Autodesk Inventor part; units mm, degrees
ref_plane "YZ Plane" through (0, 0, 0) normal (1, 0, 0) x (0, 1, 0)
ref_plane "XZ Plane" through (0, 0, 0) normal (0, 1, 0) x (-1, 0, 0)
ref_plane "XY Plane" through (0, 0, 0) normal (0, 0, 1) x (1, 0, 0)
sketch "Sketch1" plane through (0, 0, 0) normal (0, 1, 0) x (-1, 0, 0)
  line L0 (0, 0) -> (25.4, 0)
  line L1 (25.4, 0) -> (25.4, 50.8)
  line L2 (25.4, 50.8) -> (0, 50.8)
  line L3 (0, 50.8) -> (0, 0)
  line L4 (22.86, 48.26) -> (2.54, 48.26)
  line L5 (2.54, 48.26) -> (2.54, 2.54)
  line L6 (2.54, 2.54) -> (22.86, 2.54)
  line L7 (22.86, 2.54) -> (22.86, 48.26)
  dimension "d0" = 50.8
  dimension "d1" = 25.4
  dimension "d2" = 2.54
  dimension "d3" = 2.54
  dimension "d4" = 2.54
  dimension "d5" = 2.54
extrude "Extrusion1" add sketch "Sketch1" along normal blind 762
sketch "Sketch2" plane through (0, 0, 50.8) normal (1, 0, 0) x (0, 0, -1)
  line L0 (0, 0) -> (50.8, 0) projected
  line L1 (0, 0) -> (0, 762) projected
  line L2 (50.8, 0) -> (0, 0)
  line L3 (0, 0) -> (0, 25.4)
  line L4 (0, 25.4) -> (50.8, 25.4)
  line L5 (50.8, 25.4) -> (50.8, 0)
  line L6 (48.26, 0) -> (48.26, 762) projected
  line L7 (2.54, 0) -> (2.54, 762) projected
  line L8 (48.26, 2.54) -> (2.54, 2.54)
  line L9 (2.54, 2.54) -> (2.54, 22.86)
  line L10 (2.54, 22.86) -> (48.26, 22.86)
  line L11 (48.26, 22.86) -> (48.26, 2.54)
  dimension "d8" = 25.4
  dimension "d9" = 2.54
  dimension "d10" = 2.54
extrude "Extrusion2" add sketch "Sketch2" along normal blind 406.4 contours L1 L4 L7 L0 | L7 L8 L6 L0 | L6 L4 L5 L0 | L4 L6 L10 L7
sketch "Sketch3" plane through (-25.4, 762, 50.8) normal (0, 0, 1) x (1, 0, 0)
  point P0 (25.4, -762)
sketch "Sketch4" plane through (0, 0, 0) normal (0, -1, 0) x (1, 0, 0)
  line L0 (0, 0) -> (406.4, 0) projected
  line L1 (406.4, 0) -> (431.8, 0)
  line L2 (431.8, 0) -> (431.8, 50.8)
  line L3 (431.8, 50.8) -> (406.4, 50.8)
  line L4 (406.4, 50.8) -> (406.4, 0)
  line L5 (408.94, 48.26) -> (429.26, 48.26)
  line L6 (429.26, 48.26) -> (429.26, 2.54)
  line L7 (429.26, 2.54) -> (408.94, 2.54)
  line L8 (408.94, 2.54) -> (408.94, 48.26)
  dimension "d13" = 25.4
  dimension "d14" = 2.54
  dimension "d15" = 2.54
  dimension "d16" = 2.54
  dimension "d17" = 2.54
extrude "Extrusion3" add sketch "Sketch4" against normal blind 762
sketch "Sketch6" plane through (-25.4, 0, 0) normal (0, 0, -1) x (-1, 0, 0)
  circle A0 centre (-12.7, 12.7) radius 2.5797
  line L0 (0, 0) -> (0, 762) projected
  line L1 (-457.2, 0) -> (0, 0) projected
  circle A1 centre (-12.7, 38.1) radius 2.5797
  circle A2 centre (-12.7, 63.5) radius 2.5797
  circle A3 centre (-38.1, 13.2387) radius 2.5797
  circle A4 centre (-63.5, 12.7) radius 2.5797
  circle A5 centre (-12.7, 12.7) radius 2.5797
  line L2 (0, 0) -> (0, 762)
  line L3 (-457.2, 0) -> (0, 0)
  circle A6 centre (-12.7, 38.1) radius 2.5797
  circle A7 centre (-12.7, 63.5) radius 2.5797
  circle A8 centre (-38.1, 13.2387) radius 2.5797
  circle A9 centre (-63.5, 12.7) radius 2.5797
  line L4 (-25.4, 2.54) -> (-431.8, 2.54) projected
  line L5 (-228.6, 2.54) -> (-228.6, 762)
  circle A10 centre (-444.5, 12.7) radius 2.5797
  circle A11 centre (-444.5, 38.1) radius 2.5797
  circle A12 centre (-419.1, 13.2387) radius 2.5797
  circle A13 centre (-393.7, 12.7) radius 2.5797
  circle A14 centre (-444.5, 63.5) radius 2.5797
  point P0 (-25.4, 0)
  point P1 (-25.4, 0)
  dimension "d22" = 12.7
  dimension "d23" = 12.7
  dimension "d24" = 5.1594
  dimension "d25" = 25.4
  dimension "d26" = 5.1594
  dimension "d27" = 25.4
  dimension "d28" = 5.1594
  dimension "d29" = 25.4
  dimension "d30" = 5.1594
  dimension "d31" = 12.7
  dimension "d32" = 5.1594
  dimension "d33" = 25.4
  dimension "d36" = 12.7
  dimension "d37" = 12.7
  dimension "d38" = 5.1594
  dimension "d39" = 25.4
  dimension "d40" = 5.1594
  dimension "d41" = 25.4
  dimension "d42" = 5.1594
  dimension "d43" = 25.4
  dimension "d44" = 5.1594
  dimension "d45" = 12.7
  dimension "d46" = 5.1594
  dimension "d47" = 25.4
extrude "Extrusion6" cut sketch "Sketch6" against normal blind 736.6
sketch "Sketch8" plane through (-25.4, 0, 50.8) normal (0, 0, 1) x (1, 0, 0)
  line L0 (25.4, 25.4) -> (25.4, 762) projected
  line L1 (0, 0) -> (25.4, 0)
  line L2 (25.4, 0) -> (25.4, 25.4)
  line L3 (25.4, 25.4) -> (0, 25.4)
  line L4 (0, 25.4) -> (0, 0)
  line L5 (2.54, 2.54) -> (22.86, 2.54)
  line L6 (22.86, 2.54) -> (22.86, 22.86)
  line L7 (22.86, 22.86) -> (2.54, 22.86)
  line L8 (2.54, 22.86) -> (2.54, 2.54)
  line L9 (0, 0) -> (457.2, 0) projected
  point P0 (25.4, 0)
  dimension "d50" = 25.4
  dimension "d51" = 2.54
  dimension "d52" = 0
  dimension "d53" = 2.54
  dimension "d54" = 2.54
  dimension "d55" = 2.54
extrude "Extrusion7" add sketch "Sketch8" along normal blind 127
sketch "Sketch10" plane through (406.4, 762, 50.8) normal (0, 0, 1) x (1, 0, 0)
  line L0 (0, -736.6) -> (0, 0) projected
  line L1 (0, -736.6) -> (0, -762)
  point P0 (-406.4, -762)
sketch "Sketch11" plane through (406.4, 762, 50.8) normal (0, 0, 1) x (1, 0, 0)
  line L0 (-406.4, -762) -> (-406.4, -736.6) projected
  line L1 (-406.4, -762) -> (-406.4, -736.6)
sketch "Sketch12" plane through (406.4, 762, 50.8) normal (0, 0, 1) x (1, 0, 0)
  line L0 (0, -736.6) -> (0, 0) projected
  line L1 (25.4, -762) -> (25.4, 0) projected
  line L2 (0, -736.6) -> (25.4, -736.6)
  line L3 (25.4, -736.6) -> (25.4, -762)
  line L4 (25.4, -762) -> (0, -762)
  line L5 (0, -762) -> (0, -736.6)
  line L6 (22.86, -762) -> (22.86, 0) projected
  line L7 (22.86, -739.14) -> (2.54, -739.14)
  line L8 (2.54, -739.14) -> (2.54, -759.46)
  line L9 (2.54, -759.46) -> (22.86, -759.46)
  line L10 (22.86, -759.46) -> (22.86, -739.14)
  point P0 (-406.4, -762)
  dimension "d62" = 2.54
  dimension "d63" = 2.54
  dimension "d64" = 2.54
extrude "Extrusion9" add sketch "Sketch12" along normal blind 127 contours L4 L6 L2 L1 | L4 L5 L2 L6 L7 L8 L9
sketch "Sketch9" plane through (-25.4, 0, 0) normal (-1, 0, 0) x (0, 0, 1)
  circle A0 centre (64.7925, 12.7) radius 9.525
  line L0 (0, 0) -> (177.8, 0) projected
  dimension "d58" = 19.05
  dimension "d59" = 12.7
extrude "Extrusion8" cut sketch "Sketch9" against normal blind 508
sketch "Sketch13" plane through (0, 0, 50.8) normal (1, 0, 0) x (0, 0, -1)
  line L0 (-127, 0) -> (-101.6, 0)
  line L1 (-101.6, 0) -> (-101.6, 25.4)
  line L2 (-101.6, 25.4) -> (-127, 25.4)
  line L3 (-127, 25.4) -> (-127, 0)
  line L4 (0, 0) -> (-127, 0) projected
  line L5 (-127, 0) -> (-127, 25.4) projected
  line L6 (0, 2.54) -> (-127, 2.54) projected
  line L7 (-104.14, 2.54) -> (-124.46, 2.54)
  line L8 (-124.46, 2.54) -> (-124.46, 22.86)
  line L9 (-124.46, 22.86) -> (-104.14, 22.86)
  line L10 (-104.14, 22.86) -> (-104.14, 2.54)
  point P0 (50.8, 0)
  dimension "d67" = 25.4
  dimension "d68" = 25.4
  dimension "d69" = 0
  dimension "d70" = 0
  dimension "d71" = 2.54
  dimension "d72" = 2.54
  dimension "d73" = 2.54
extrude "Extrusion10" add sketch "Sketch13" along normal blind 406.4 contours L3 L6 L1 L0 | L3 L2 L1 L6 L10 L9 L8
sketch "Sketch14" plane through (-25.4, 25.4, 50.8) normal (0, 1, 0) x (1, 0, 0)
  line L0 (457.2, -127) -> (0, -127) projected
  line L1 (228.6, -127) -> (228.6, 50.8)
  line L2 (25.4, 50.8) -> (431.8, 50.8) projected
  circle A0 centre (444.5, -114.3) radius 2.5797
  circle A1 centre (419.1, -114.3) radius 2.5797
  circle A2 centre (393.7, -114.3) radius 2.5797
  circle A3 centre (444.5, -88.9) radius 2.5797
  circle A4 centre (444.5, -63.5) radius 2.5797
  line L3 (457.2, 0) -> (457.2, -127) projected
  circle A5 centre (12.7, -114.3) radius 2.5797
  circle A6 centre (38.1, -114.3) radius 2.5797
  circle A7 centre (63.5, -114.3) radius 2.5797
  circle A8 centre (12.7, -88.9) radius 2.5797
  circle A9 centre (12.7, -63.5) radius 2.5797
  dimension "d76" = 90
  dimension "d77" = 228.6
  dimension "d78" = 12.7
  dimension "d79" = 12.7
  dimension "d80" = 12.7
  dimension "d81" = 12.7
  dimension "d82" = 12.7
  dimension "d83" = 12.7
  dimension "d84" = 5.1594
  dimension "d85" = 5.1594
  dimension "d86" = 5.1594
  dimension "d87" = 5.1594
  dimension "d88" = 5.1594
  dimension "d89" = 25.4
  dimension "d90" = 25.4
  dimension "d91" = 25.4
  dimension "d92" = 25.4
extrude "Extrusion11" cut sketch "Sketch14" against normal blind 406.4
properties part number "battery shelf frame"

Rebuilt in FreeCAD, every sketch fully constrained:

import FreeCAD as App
import Part
import Sketcher

V = App.Vector
Q = App.Units.Quantity

doc = App.newDocument("Part")
params = doc.addObject("Spreadsheet::Sheet", "Params")
for row, (alias, value) in enumerate([
    ("sketch1_width", "1 in"),
    ("sketch1_height", "2 in"),
    ("pad1_length", "30 in"),
    ("sketch2_width", "1 in"),
    ("sketch2_height", "2 in"),
    ("pad2_length", "16 in"),
    ("sketch3_width", "1 in"),
    ("sketch3_height", "2 in"),
    ("pad3_length", "30 in"),
    ("sketch4_diameter", "0.203126 in"),
    ("pocket1_length", "29 in"),
    ("sketch5_width", "1 in"),
    ("pad4_length", "5 in"),
    ("sketch6_width", "1 in"),
    ("pad5_length", "5 in"),
    ("sketch7_diameter", "0.75 in"),
    ("pocket2_length", "20 in"),
    ("sketch8_width", "1 in"),
    ("pad6_length", "16 in"),
    ("sketch9_diameter", "0.203126 in"),
    ("pocket3_length", "16 in"),
], start=1):
    params.set(f"A{row}", alias)
    params.set(f"B{row}", "=" + value)
    params.setAlias(f"B{row}", alias)

body = doc.addObject("PartDesign::Body", "Body")

# Sketch on XZ plane
sketch1 = doc.addObject("Sketcher::SketchObject", "Sketch")
body.addObject(sketch1)
sketch1.AttachmentSupport = (doc.XZ_Plane, [""])
sketch1.MapMode = "FlatFace"
sketch1.addGeometry(Part.LineSegment(V(0, 50.8, 0), V(0, 0, 0)), False)
sketch1.addGeometry(Part.LineSegment(V(0, 0, 0), V(-25.4, 0, 0)), False)
sketch1.addGeometry(Part.LineSegment(V(-25.4, 0, 0), V(-25.4, 50.8, 0)), False)
sketch1.addGeometry(Part.LineSegment(V(-25.4, 50.8, 0), V(0, 50.8, 0)), False)
sketch1.addGeometry(Part.LineSegment(V(-2.54, 48.26, 0), V(-22.86, 48.26, 0)), False)
sketch1.addGeometry(Part.LineSegment(V(-22.86, 48.26, 0), V(-22.86, 2.54, 0)), False)
sketch1.addGeometry(Part.LineSegment(V(-22.86, 2.54, 0), V(-2.54, 2.54, 0)), False)
sketch1.addGeometry(Part.LineSegment(V(-2.54, 2.54, 0), V(-2.54, 48.26, 0)), False)
sketch1.addConstraint(Sketcher.Constraint("Coincident", 0, 2, 1, 1))
sketch1.addConstraint(Sketcher.Constraint("Coincident", 1, 2, 2, 1))
sketch1.addConstraint(Sketcher.Constraint("Coincident", 2, 2, 3, 1))
sketch1.addConstraint(Sketcher.Constraint("Coincident", 3, 2, 0, 1))
sketch1.addConstraint(Sketcher.Constraint("Coincident", 4, 2, 5, 1))
sketch1.addConstraint(Sketcher.Constraint("Coincident", 5, 2, 6, 1))
sketch1.addConstraint(Sketcher.Constraint("Coincident", 6, 2, 7, 1))
sketch1.addConstraint(Sketcher.Constraint("Coincident", 7, 2, 4, 1))
sketch1.addConstraint(Sketcher.Constraint("Vertical", 0))
sketch1.addConstraint(Sketcher.Constraint("Horizontal", 1))
sketch1.addConstraint(Sketcher.Constraint("Vertical", 2))
sketch1.addConstraint(Sketcher.Constraint("Horizontal", 3))
sketch1.addConstraint(Sketcher.Constraint("Horizontal", 4))
sketch1.addConstraint(Sketcher.Constraint("Vertical", 5))
sketch1.addConstraint(Sketcher.Constraint("Horizontal", 6))
sketch1.addConstraint(Sketcher.Constraint("Vertical", 7))
sketch1.addConstraint(Sketcher.Constraint("Coincident", 0, 2, -1, 1))
sketch1.addConstraint(Sketcher.Constraint("DistanceX", 1, 2, 1, 1, Q("1 in")))
sketch1.addConstraint(Sketcher.Constraint("DistanceY", 0, 2, 0, 1, Q("2 in")))
sketch1.addConstraint(Sketcher.Constraint("DistanceY", -1, 1, 5, 2, Q("0.1 in")))
sketch1.addConstraint(Sketcher.Constraint("DistanceX", 6, 2, -1, 1, Q("0.1 in")))
sketch1.addConstraint(Sketcher.Constraint("DistanceX", 2, 2, 4, 2, Q("0.1 in")))
sketch1.addConstraint(Sketcher.Constraint("DistanceY", 4, 2, 2, 2, Q("0.1 in")))
sketch1.setExpression("Constraints[17]", "Params.sketch1_width")
sketch1.setExpression("Constraints[18]", "Params.sketch1_height")
pad1 = doc.addObject("PartDesign::Pad", "Pad")
body.addObject(pad1)
pad1.Profile = sketch1
pad1.setExpression("Length", "Params.pad1_length")
pad1.Reversed = True

# Sketch on YZ plane
sketch2 = doc.addObject("Sketcher::SketchObject", "Sketch001")
body.addObject(sketch2)
sketch2.AttachmentSupport = (doc.YZ_Plane, [""])
sketch2.MapMode = "FlatFace"
sketch2.addGeometry(Part.LineSegment(V(25.4, 50.8, 0), V(0, 50.8, 0)), False)
sketch2.addGeometry(Part.LineSegment(V(0, 50.8, 0), V(0, 0, 0)), False)
sketch2.addGeometry(Part.LineSegment(V(0, 0, 0), V(25.4, 0, 0)), False)
sketch2.addGeometry(Part.LineSegment(V(25.4, 0, 0), V(25.4, 50.8, 0)), False)
sketch2.addGeometry(Part.LineSegment(V(2.54, 48.26, 0), V(22.86, 48.26, 0)), False)
sketch2.addGeometry(Part.LineSegment(V(22.86, 48.26, 0), V(22.86, 2.54, 0)), False)
sketch2.addGeometry(Part.LineSegment(V(22.86, 2.54, 0), V(2.54, 2.54, 0)), False)
sketch2.addGeometry(Part.LineSegment(V(2.54, 2.54, 0), V(2.54, 48.26, 0)), False)
sketch2.addConstraint(Sketcher.Constraint("Coincident", 0, 2, 1, 1))
sketch2.addConstraint(Sketcher.Constraint("Coincident", 1, 2, 2, 1))
sketch2.addConstraint(Sketcher.Constraint("Coincident", 2, 2, 3, 1))
sketch2.addConstraint(Sketcher.Constraint("Coincident", 3, 2, 0, 1))
sketch2.addConstraint(Sketcher.Constraint("Coincident", 4, 2, 5, 1))
sketch2.addConstraint(Sketcher.Constraint("Coincident", 5, 2, 6, 1))
sketch2.addConstraint(Sketcher.Constraint("Coincident", 6, 2, 7, 1))
sketch2.addConstraint(Sketcher.Constraint("Coincident", 7, 2, 4, 1))
sketch2.addConstraint(Sketcher.Constraint("Horizontal", 0))
sketch2.addConstraint(Sketcher.Constraint("Vertical", 1))
sketch2.addConstraint(Sketcher.Constraint("Horizontal", 2))
sketch2.addConstraint(Sketcher.Constraint("Vertical", 3))
sketch2.addConstraint(Sketcher.Constraint("Horizontal", 4))
sketch2.addConstraint(Sketcher.Constraint("Vertical", 5))
sketch2.addConstraint(Sketcher.Constraint("Horizontal", 6))
sketch2.addConstraint(Sketcher.Constraint("Vertical", 7))
sketch2.addConstraint(Sketcher.Constraint("Coincident", 1, 2, -1, 1))
sketch2.addConstraint(Sketcher.Constraint("DistanceX", 0, 2, 0, 1, Q("1 in")))
sketch2.addConstraint(Sketcher.Constraint("DistanceY", -1, 1, 5, 2, Q("0.1 in")))
sketch2.addConstraint(Sketcher.Constraint("DistanceX", -1, 1, 6, 2, Q("0.1 in")))
sketch2.addConstraint(Sketcher.Constraint("DistanceX", 4, 2, 3, 2, Q("0.1 in")))
sketch2.addConstraint(Sketcher.Constraint("DistanceY", 4, 2, 3, 2, Q("0.1 in")))
sketch2.addConstraint(Sketcher.Constraint("DistanceY", 1, 2, 1, 1, Q("2 in")))
sketch2.setExpression("Constraints[17]", "Params.sketch2_width")
sketch2.setExpression("Constraints[22]", "Params.sketch2_height")
pad2 = doc.addObject("PartDesign::Pad", "Pad001")
body.addObject(pad2)
pad2.Profile = sketch2
pad2.setExpression("Length", "Params.pad2_length")

# Sketch on XZ plane
sketch3 = doc.addObject("Sketcher::SketchObject", "Sketch002")
body.addObject(sketch3)
sketch3.AttachmentSupport = (doc.XZ_Plane, [""])
sketch3.MapMode = "FlatFace"
sketch3.addGeometry(Part.LineSegment(V(406.4, 50.8, 0), V(406.4, 0, 0)), False)
sketch3.addGeometry(Part.LineSegment(V(406.4, 0, 0), V(431.8, 0, 0)), False)
sketch3.addGeometry(Part.LineSegment(V(431.8, 0, 0), V(431.8, 50.8, 0)), False)
sketch3.addGeometry(Part.LineSegment(V(431.8, 50.8, 0), V(406.4, 50.8, 0)), False)
sketch3.addGeometry(Part.LineSegment(V(408.94, 2.54, 0), V(408.94, 48.26, 0)), False)
sketch3.addGeometry(Part.LineSegment(V(408.94, 48.26, 0), V(429.26, 48.26, 0)), False)
sketch3.addGeometry(Part.LineSegment(V(429.26, 48.26, 0), V(429.26, 2.54, 0)), False)
sketch3.addGeometry(Part.LineSegment(V(429.26, 2.54, 0), V(408.94, 2.54, 0)), False)
sketch3.addConstraint(Sketcher.Constraint("Coincident", 0, 2, 1, 1))
sketch3.addConstraint(Sketcher.Constraint("Coincident", 1, 2, 2, 1))
sketch3.addConstraint(Sketcher.Constraint("Coincident", 2, 2, 3, 1))
sketch3.addConstraint(Sketcher.Constraint("Coincident", 3, 2, 0, 1))
sketch3.addConstraint(Sketcher.Constraint("Coincident", 4, 2, 5, 1))
sketch3.addConstraint(Sketcher.Constraint("Coincident", 5, 2, 6, 1))
sketch3.addConstraint(Sketcher.Constraint("Coincident", 6, 2, 7, 1))
sketch3.addConstraint(Sketcher.Constraint("Coincident", 7, 2, 4, 1))
sketch3.addConstraint(Sketcher.Constraint("Vertical", 0))
sketch3.addConstraint(Sketcher.Constraint("Horizontal", 1))
sketch3.addConstraint(Sketcher.Constraint("Vertical", 2))
sketch3.addConstraint(Sketcher.Constraint("Horizontal", 3))
sketch3.addConstraint(Sketcher.Constraint("Vertical", 4))
sketch3.addConstraint(Sketcher.Constraint("Horizontal", 5))
sketch3.addConstraint(Sketcher.Constraint("Vertical", 6))
sketch3.addConstraint(Sketcher.Constraint("Horizontal", 7))
sketch3.addConstraint(Sketcher.Constraint("PointOnObject", 0, 2, -1))
sketch3.addConstraint(Sketcher.Constraint("DistanceX", 1, 1, 1, 2, Q("1 in")))
sketch3.addConstraint(Sketcher.Constraint("DistanceY", -1, 1, 6, 2, Q("0.1 in")))
sketch3.addConstraint(Sketcher.Constraint("DistanceX", 3, 2, 4, 2, Q("0.1 in")))
sketch3.addConstraint(Sketcher.Constraint("DistanceY", 4, 2, 3, 2, Q("0.1 in")))
sketch3.addConstraint(Sketcher.Constraint("DistanceX", 5, 2, 2, 2, Q("0.1 in")))
sketch3.addConstraint(Sketcher.Constraint("DistanceY", 0, 2, 0, 1, Q("2 in")))
sketch3.addConstraint(Sketcher.Constraint("DistanceX", -1, 1, 0, 2, Q("16 in")))
sketch3.setExpression("Constraints[17]", "Params.sketch3_width")
sketch3.setExpression("Constraints[22]", "Params.sketch3_height")
pad3 = doc.addObject("PartDesign::Pad", "Pad002")
body.addObject(pad3)
pad3.Profile = sketch3
pad3.setExpression("Length", "Params.pad3_length")
pad3.Reversed = True

# Sketch on XY plane
sketch4 = doc.addObject("Sketcher::SketchObject", "Sketch003")
body.addObject(sketch4)
sketch4.AttachmentSupport = (doc.XY_Plane, [""])
sketch4.MapMode = "FlatFace"
sketch4.addGeometry(Part.Circle(V(-12.7, 12.7, 0), V(0, 0, 1), 2.5797), False)
sketch4.addGeometry(Part.Circle(V(-12.7, 38.1, 0), V(0, 0, 1), 2.5797), False)
sketch4.addGeometry(Part.Circle(V(-12.7, 63.5, 0), V(0, 0, 1), 2.5797), False)
sketch4.addGeometry(Part.Circle(V(12.7, 13.2387, 0), V(0, 0, 1), 2.5797), False)
sketch4.addGeometry(Part.Circle(V(38.1, 12.7, 0), V(0, 0, 1), 2.5797), False)
sketch4.addGeometry(Part.Circle(V(419.1, 12.7, 0), V(0, 0, 1), 2.5797), False)
sketch4.addGeometry(Part.Circle(V(419.1, 38.1, 0), V(0, 0, 1), 2.5797), False)
sketch4.addGeometry(Part.Circle(V(393.7, 13.2387, 0), V(0, 0, 1), 2.5797), False)
sketch4.addGeometry(Part.Circle(V(368.3, 12.7, 0), V(0, 0, 1), 2.5797), False)
sketch4.addGeometry(Part.Circle(V(419.1, 63.5, 0), V(0, 0, 1), 2.5797), False)
sketch4.addConstraint(Sketcher.Constraint("Equal", 0, 1))
sketch4.addConstraint(Sketcher.Constraint("Equal", 1, 2))
sketch4.addConstraint(Sketcher.Constraint("Equal", 2, 3))
sketch4.addConstraint(Sketcher.Constraint("Equal", 3, 4))
sketch4.addConstraint(Sketcher.Constraint("Equal", 4, 5))
sketch4.addConstraint(Sketcher.Constraint("Equal", 5, 6))
sketch4.addConstraint(Sketcher.Constraint("Equal", 6, 7))
sketch4.addConstraint(Sketcher.Constraint("Equal", 7, 8))
sketch4.addConstraint(Sketcher.Constraint("Equal", 8, 9))
sketch4.addConstraint(Sketcher.Constraint("Horizontal", 0, 3, 4, 3))
sketch4.addConstraint(Sketcher.Constraint("Horizontal", 4, 3, 5, 3))
sketch4.addConstraint(Sketcher.Constraint("Horizontal", 1, 3, 6, 3))
sketch4.addConstraint(Sketcher.Constraint("Horizontal", 3, 3, 7, 3))
sketch4.addConstraint(Sketcher.Constraint("Horizontal", 5, 3, 8, 3))
sketch4.addConstraint(Sketcher.Constraint("Horizontal", 2, 3, 9, 3))
sketch4.addConstraint(Sketcher.Constraint("Vertical", 0, 3, 1, 3))
sketch4.addConstraint(Sketcher.Constraint("Vertical", 1, 3, 2, 3))
sketch4.addConstraint(Sketcher.Constraint("Vertical", 5, 3, 6, 3))
sketch4.addConstraint(Sketcher.Constraint("Vertical", 6, 3, 9, 3))
sketch4.addConstraint(Sketcher.Constraint("Diameter", 0, Q("0.203126 in")))
sketch4.addConstraint(Sketcher.Constraint("DistanceY", 0, 3, 1, 3, Q("1 in")))
sketch4.addConstraint(Sketcher.Constraint("DistanceY", 1, 3, 2, 3, Q("1 in")))
sketch4.addConstraint(Sketcher.Constraint("DistanceX", 0, 3, 3, 3, Q("1 in")))
sketch4.addConstraint(Sketcher.Constraint("DistanceX", 3, 3, 4, 3, Q("1 in")))
sketch4.addConstraint(Sketcher.Constraint("DistanceX", 7, 3, 5, 3, Q("1 in")))
sketch4.addConstraint(Sketcher.Constraint("DistanceX", 8, 3, 7, 3, Q("1 in")))
sketch4.addConstraint(Sketcher.Constraint("DistanceX", 0, 3, -1, 1, Q("0.5 in")))
sketch4.addConstraint(Sketcher.Constraint("DistanceY", -1, 1, 0, 3, Q("0.5 in")))
sketch4.addConstraint(Sketcher.Constraint("DistanceX", 4, 3, 5, 3, Q("15 in")))
sketch4.addConstraint(Sketcher.Constraint("DistanceY", -1, 1, 3, 3, Q("0.5212 in")))
sketch4.setExpression("Constraints[19]", "Params.sketch4_diameter")
pocket1 = doc.addObject("PartDesign::Pocket", "Pocket")
body.addObject(pocket1)
pocket1.Profile = sketch4
pocket1.setExpression("Length", "Params.pocket1_length")
pocket1.Reversed = True

# Sketch on XY plane
sketch5 = doc.addObject("Sketcher::SketchObject", "Sketch004")
body.addObject(sketch5)
sketch5.AttachmentSupport = (doc.XY_Plane, [""])
sketch5.MapMode = "FlatFace"
sketch5.AttachmentOffset = App.Placement(V(0, 0, 2 * 25.4), App.Rotation())
sketch5.addGeometry(Part.LineSegment(V(-25.4, 25.4, 0), V(-25.4, 0, 0)), False)
sketch5.addGeometry(Part.LineSegment(V(-25.4, 0, 0), V(0, 0, 0)), False)
sketch5.addGeometry(Part.LineSegment(V(0, 0, 0), V(0, 25.4, 0)), False)
sketch5.addGeometry(Part.LineSegment(V(0, 25.4, 0), V(-25.4, 25.4, 0)), False)
sketch5.addGeometry(Part.LineSegment(V(-2.54, 2.54, 0), V(-22.86, 2.54, 0)), False)
sketch5.addGeometry(Part.LineSegment(V(-22.86, 2.54, 0), V(-22.86, 22.86, 0)), False)
sketch5.addGeometry(Part.LineSegment(V(-22.86, 22.86, 0), V(-2.54, 22.86, 0)), False)
sketch5.addGeometry(Part.LineSegment(V(-2.54, 22.86, 0), V(-2.54, 2.54, 0)), False)
sketch5.addConstraint(Sketcher.Constraint("Coincident", 0, 2, 1, 1))
sketch5.addConstraint(Sketcher.Constraint("Coincident", 1, 2, 2, 1))
sketch5.addConstraint(Sketcher.Constraint("Coincident", 2, 2, 3, 1))
sketch5.addConstraint(Sketcher.Constraint("Coincident", 3, 2, 0, 1))
sketch5.addConstraint(Sketcher.Constraint("Coincident", 4, 2, 5, 1))
sketch5.addConstraint(Sketcher.Constraint("Coincident", 5, 2, 6, 1))
sketch5.addConstraint(Sketcher.Constraint("Coincident", 6, 2, 7, 1))
sketch5.addConstraint(Sketcher.Constraint("Coincident", 7, 2, 4, 1))
sketch5.addConstraint(Sketcher.Constraint("Vertical", 0))
sketch5.addConstraint(Sketcher.Constraint("Horizontal", 1))
sketch5.addConstraint(Sketcher.Constraint("Vertical", 2))
sketch5.addConstraint(Sketcher.Constraint("Horizontal", 3))
sketch5.addConstraint(Sketcher.Constraint("Horizontal", 4))
sketch5.addConstraint(Sketcher.Constraint("Vertical", 5))
sketch5.addConstraint(Sketcher.Constraint("Horizontal", 6))
sketch5.addConstraint(Sketcher.Constraint("Vertical", 7))
sketch5.addConstraint(Sketcher.Constraint("Coincident", 1, 2, -1, 1))
sketch5.addConstraint(Sketcher.Constraint("Equal", 3, 0))
sketch5.addConstraint(Sketcher.Constraint("Equal", 6, 5))
sketch5.addConstraint(Sketcher.Constraint("DistanceX", 1, 1, 1, 2, Q("1 in")))
sketch5.addConstraint(Sketcher.Constraint("DistanceY", -1, 1, 4, 2, Q("0.1 in")))
sketch5.addConstraint(Sketcher.Constraint("DistanceX", 6, 2, -1, 1, Q("0.1 in")))
sketch5.addConstraint(Sketcher.Constraint("DistanceX", 0, 2, 4, 2, Q("0.1 in")))
sketch5.setExpression("Constraints[19]", "Params.sketch5_width")
pad4 = doc.addObject("PartDesign::Pad", "Pad003")
body.addObject(pad4)
pad4.Profile = sketch5
pad4.setExpression("Length", "Params.pad4_length")

# Sketch on XY plane
sketch6 = doc.addObject("Sketcher::SketchObject", "Sketch005")
body.addObject(sketch6)
sketch6.AttachmentSupport = (doc.XY_Plane, [""])
sketch6.MapMode = "FlatFace"
sketch6.AttachmentOffset = App.Placement(V(0, 0, 2 * 25.4), App.Rotation())
sketch6.addGeometry(Part.LineSegment(V(431.8, 0, 0), V(431.8, 25.4, 0)), False)
sketch6.addGeometry(Part.LineSegment(V(431.8, 25.4, 0), V(406.4, 25.4, 0)), False)
sketch6.addGeometry(Part.LineSegment(V(406.4, 25.4, 0), V(406.4, 0, 0)), False)
sketch6.addGeometry(Part.LineSegment(V(406.4, 0, 0), V(431.8, 0, 0)), False)
sketch6.addGeometry(Part.LineSegment(V(429.26, 22.86, 0), V(429.26, 2.54, 0)), False)
sketch6.addGeometry(Part.LineSegment(V(429.26, 2.54, 0), V(408.94, 2.54, 0)), False)
sketch6.addGeometry(Part.LineSegment(V(408.94, 2.54, 0), V(408.94, 22.86, 0)), False)
sketch6.addGeometry(Part.LineSegment(V(408.94, 22.86, 0), V(429.26, 22.86, 0)), False)
sketch6.addConstraint(Sketcher.Constraint("Coincident", 0, 2, 1, 1))
sketch6.addConstraint(Sketcher.Constraint("Coincident", 1, 2, 2, 1))
sketch6.addConstraint(Sketcher.Constraint("Coincident", 2, 2, 3, 1))
sketch6.addConstraint(Sketcher.Constraint("Coincident", 3, 2, 0, 1))
sketch6.addConstraint(Sketcher.Constraint("Coincident", 4, 2, 5, 1))
sketch6.addConstraint(Sketcher.Constraint("Coincident", 5, 2, 6, 1))
sketch6.addConstraint(Sketcher.Constraint("Coincident", 6, 2, 7, 1))
sketch6.addConstraint(Sketcher.Constraint("Coincident", 7, 2, 4, 1))
sketch6.addConstraint(Sketcher.Constraint("Vertical", 0))
sketch6.addConstraint(Sketcher.Constraint("Horizontal", 1))
sketch6.addConstraint(Sketcher.Constraint("Vertical", 2))
sketch6.addConstraint(Sketcher.Constraint("Horizontal", 3))
sketch6.addConstraint(Sketcher.Constraint("Vertical", 4))
sketch6.addConstraint(Sketcher.Constraint("Horizontal", 5))
sketch6.addConstraint(Sketcher.Constraint("Vertical", 6))
sketch6.addConstraint(Sketcher.Constraint("Horizontal", 7))
sketch6.addConstraint(Sketcher.Constraint("PointOnObject", 2, 2, -1))
sketch6.addConstraint(Sketcher.Constraint("Equal", 3, 0))
sketch6.addConstraint(Sketcher.Constraint("Equal", 7, 4))
sketch6.addConstraint(Sketcher.Constraint("DistanceY", -1, 1, 4, 2, Q("0.1 in")))
sketch6.addConstraint(Sketcher.Constraint("DistanceX", 4, 2, 3, 2, Q("0.1 in")))
sketch6.addConstraint(Sketcher.Constraint("DistanceX", 2, 2, 5, 2, Q("0.1 in")))
sketch6.addConstraint(Sketcher.Constraint("DistanceX", 1, 2, 1, 1, Q("1 in")))
sketch6.addConstraint(Sketcher.Constraint("DistanceX", -1, 1, 0, 2, Q("17 in")))
sketch6.setExpression("Constraints[22]", "Params.sketch6_width")
pad5 = doc.addObject("PartDesign::Pad", "Pad004")
body.addObject(pad5)
pad5.Profile = sketch6
pad5.setExpression("Length", "Params.pad5_length")

# Sketch on YZ plane
sketch7 = doc.addObject("Sketcher::SketchObject", "Sketch006")
body.addObject(sketch7)
sketch7.AttachmentSupport = (doc.YZ_Plane, [""])
sketch7.MapMode = "FlatFace"
sketch7.AttachmentOffset = App.Placement(V(0, 0, -1 * 25.4), App.Rotation())
sketch7.addGeometry(Part.Circle(V(12.7, 64.7925, 0), V(0, 0, 1), 9.525), False)
sketch7.addConstraint(Sketcher.Constraint("Diameter", 0, Q("0.75 in")))
sketch7.addConstraint(Sketcher.Constraint("DistanceX", -1, 1, 0, 3, Q("0.5 in")))
sketch7.addConstraint(Sketcher.Constraint("DistanceY", -1, 1, 0, 3, 64.7925))
sketch7.setExpression("Constraints[0]", "Params.sketch7_diameter")
pocket2 = doc.addObject("PartDesign::Pocket", "Pocket001")
body.addObject(pocket2)
pocket2.Profile = sketch7
pocket2.setExpression("Length", "Params.pocket2_length")
pocket2.Reversed = True

# Sketch on YZ plane
sketch8 = doc.addObject("Sketcher::SketchObject", "Sketch007")
body.addObject(sketch8)
sketch8.AttachmentSupport = (doc.YZ_Plane, [""])
sketch8.MapMode = "FlatFace"
sketch8.addGeometry(Part.LineSegment(V(0, 177.8, 0), V(0, 152.4, 0)), False)
sketch8.addGeometry(Part.LineSegment(V(0, 152.4, 0), V(25.4, 152.4, 0)), False)
sketch8.addGeometry(Part.LineSegment(V(25.4, 152.4, 0), V(25.4, 177.8, 0)), False)
sketch8.addGeometry(Part.LineSegment(V(25.4, 177.8, 0), V(0, 177.8, 0)), False)
sketch8.addGeometry(Part.LineSegment(V(2.54, 154.94, 0), V(2.54, 175.26, 0)), False)
sketch8.addGeometry(Part.LineSegment(V(2.54, 175.26, 0), V(22.86, 175.26, 0)), False)
sketch8.addGeometry(Part.LineSegment(V(22.86, 175.26, 0), V(22.86, 154.94, 0)), False)
sketch8.addGeometry(Part.LineSegment(V(22.86, 154.94, 0), V(2.54, 154.94, 0)), False)
sketch8.addConstraint(Sketcher.Constraint("Coincident", 0, 2, 1, 1))
sketch8.addConstraint(Sketcher.Constraint("Coincident", 1, 2, 2, 1))
sketch8.addConstraint(Sketcher.Constraint("Coincident", 2, 2, 3, 1))
sketch8.addConstraint(Sketcher.Constraint("Coincident", 3, 2, 0, 1))
sketch8.addConstraint(Sketcher.Constraint("Coincident", 4, 2, 5, 1))
sketch8.addConstraint(Sketcher.Constraint("Coincident", 5, 2, 6, 1))
sketch8.addConstraint(Sketcher.Constraint("Coincident", 6, 2, 7, 1))
sketch8.addConstraint(Sketcher.Constraint("Coincident", 7, 2, 4, 1))
sketch8.addConstraint(Sketcher.Constraint("Vertical", 0))
sketch8.addConstraint(Sketcher.Constraint("Horizontal", 1))
sketch8.addConstraint(Sketcher.Constraint("Vertical", 2))
sketch8.addConstraint(Sketcher.Constraint("Horizontal", 3))
sketch8.addConstraint(Sketcher.Constraint("Vertical", 4))
sketch8.addConstraint(Sketcher.Constraint("Horizontal", 5))
sketch8.addConstraint(Sketcher.Constraint("Vertical", 6))
sketch8.addConstraint(Sketcher.Constraint("Horizontal", 7))
sketch8.addConstraint(Sketcher.Constraint("PointOnObject", 0, 2, -2))
sketch8.addConstraint(Sketcher.Constraint("Equal", 3, 0))
sketch8.addConstraint(Sketcher.Constraint("Equal", 7, 4))
sketch8.addConstraint(Sketcher.Constraint("DistanceX", 1, 1, 1, 2, Q("1 in")))
sketch8.addConstraint(Sketcher.Constraint("DistanceX", -1, 1, 4, 2, Q("0.1 in")))
sketch8.addConstraint(Sketcher.Constraint("DistanceY", 4, 2, 3, 2, Q("0.1 in")))
sketch8.addConstraint(Sketcher.Constraint("DistanceX", 5, 2, 2, 2, Q("0.1 in")))
sketch8.addConstraint(Sketcher.Constraint("DistanceY", -1, 1, 0, 2, Q("6 in")))
sketch8.setExpression("Constraints[19]", "Params.sketch8_width")
pad6 = doc.addObject("PartDesign::Pad", "Pad005")
body.addObject(pad6)
pad6.Profile = sketch8
pad6.setExpression("Length", "Params.pad6_length")

# Sketch on XZ plane
sketch9 = doc.addObject("Sketcher::SketchObject", "Sketch008")
body.addObject(sketch9)
sketch9.AttachmentSupport = (doc.XZ_Plane, [""])
sketch9.MapMode = "FlatFace"
sketch9.AttachmentOffset = App.Placement(V(0, 0, -1 * 25.4), App.Rotation())
sketch9.addGeometry(Part.Circle(V(419.1, 165.1, 0), V(0, 0, 1), 2.5797), False)
sketch9.addGeometry(Part.Circle(V(393.7, 165.1, 0), V(0, 0, 1), 2.5797), False)
sketch9.addGeometry(Part.Circle(V(368.3, 165.1, 0), V(0, 0, 1), 2.5797), False)
sketch9.addGeometry(Part.Circle(V(419.1, 139.7, 0), V(0, 0, 1), 2.5797), False)
sketch9.addGeometry(Part.Circle(V(419.1, 114.3, 0), V(0, 0, 1), 2.5797), False)
sketch9.addGeometry(Part.Circle(V(-12.7, 165.1, 0), V(0, 0, 1), 2.5797), False)
sketch9.addGeometry(Part.Circle(V(12.7, 165.1, 0), V(0, 0, 1), 2.5797), False)
sketch9.addGeometry(Part.Circle(V(38.1, 165.1, 0), V(0, 0, 1), 2.5797), False)
sketch9.addGeometry(Part.Circle(V(-12.7, 139.7, 0), V(0, 0, 1), 2.5797), False)
sketch9.addGeometry(Part.Circle(V(-12.7, 114.3, 0), V(0, 0, 1), 2.5797), False)
sketch9.addConstraint(Sketcher.Constraint("Equal", 0, 1))
sketch9.addConstraint(Sketcher.Constraint("Equal", 1, 2))
sketch9.addConstraint(Sketcher.Constraint("Equal", 2, 3))
sketch9.addConstraint(Sketcher.Constraint("Equal", 3, 4))
sketch9.addConstraint(Sketcher.Constraint("Equal", 4, 5))
sketch9.addConstraint(Sketcher.Constraint("Equal", 5, 6))
sketch9.addConstraint(Sketcher.Constraint("Equal", 6, 7))
sketch9.addConstraint(Sketcher.Constraint("Equal", 7, 8))
sketch9.addConstraint(Sketcher.Constraint("Equal", 8, 9))
sketch9.addConstraint(Sketcher.Constraint("Symmetric", 5, 3, 6, 3, -2))
sketch9.addConstraint(Sketcher.Constraint("Horizontal", 0, 3, 1, 3))
sketch9.addConstraint(Sketcher.Constraint("Horizontal", 1, 3, 2, 3))
sketch9.addConstraint(Sketcher.Constraint("Horizontal", 2, 3, 5, 3))
sketch9.addConstraint(Sketcher.Constraint("Horizontal", 6, 3, 7, 3))
sketch9.addConstraint(Sketcher.Constraint("Horizontal", 3, 3, 8, 3))
sketch9.addConstraint(Sketcher.Constraint("Horizontal", 4, 3, 9, 3))
sketch9.addConstraint(Sketcher.Constraint("Vertical", 0, 3, 3, 3))
sketch9.addConstraint(Sketcher.Constraint("Vertical", 3, 3, 4, 3))
sketch9.addConstraint(Sketcher.Constraint("Vertical", 5, 3, 8, 3))
sketch9.addConstraint(Sketcher.Constraint("Vertical", 8, 3, 9, 3))
sketch9.addConstraint(Sketcher.Constraint("Diameter", 0, Q("0.203126 in")))
sketch9.addConstraint(Sketcher.Constraint("DistanceX", 1, 3, 0, 3, Q("1 in")))
sketch9.addConstraint(Sketcher.Constraint("DistanceX", 2, 3, 1, 3, Q("1 in")))
sketch9.addConstraint(Sketcher.Constraint("DistanceY", 3, 3, 0, 3, Q("1 in")))
sketch9.addConstraint(Sketcher.Constraint("DistanceY", 4, 3, 3, 3, Q("1 in")))
sketch9.addConstraint(Sketcher.Constraint("DistanceX", 5, 3, 6, 3, Q("1 in")))
sketch9.addConstraint(Sketcher.Constraint("DistanceX", 6, 3, 7, 3, Q("1 in")))
sketch9.addConstraint(Sketcher.Constraint("DistanceX", 5, 3, 2, 3, Q("15 in")))
sketch9.addConstraint(Sketcher.Constraint("DistanceY", -1, 1, 0, 3, Q("6.5 in")))
sketch9.setExpression("Constraints[20]", "Params.sketch9_diameter")
pocket3 = doc.addObject("PartDesign::Pocket", "Pocket002")
body.addObject(pocket3)
pocket3.Profile = sketch9
pocket3.setExpression("Length", "Params.pocket3_length")
pocket3.Reversed = True

doc.recompute()
